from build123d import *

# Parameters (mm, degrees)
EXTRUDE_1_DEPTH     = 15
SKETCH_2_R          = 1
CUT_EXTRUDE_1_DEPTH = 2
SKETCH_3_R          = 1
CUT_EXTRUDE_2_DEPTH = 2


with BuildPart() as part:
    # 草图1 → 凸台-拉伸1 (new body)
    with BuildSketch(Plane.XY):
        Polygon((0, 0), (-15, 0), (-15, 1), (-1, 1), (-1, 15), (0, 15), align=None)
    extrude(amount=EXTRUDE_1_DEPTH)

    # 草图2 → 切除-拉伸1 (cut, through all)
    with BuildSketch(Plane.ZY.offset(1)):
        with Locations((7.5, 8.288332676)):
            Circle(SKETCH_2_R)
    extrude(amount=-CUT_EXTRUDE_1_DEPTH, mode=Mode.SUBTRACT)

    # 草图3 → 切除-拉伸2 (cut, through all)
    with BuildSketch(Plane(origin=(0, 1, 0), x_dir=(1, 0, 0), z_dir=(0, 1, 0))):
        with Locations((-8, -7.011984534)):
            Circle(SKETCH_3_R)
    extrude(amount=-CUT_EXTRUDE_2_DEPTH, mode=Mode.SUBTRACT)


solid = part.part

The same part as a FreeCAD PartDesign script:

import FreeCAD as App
import Part
import Sketcher
from FreeCAD import Vector
Q = App.Units.Quantity


def add_polygon(sketch, points):
    """Adds a closed chain of lines whose ends are joined by coincident constraints."""
    first, n = sketch.GeometryCount, len(points)
    for a, b in zip(points, points[1:] + points[:1]):
        sketch.addGeometry(Part.LineSegment(App.Vector(*a, 0), App.Vector(*b, 0)), False)
    for i in range(n):
        sketch.addConstraint(Sketcher.Constraint("Coincident", first + i, 2, first + (i + 1) % n, 1))

doc = App.newDocument("Part")
body = doc.addObject("PartDesign::Body", "Body")

# Sketch on XY plane
sketch1 = body.newObject("Sketcher::SketchObject", "Sketch")
sketch1.AttachmentSupport = (doc.getObject("XY_Plane"), [""])
sketch1.MapMode = "FlatFace"
add_polygon(sketch1, [(-15, 0), (0, 0), (0, 15), (-1, 15), (-1, 1), (-15, 1)])  # lines 0-5
sketch1.addConstraint([
    Sketcher.Constraint("Horizontal", 0),
    Sketcher.Constraint("Vertical", 1),
    Sketcher.Constraint("Horizontal", 2),
    Sketcher.Constraint("Vertical", 3),
    Sketcher.Constraint("Horizontal", 4),
    Sketcher.Constraint("Vertical", 5),
    Sketcher.Constraint("Coincident", 0, 2, -1, 1),
    Sketcher.Constraint("Equal", 0, 1),
    Sketcher.Constraint("Equal", 4, 3),
    Sketcher.Constraint("DistanceX", 0, 1, 0, 2, Q("15 mm")),
    Sketcher.Constraint("DistanceX", 2, 2, 2, 1, Q("1 mm")),
])
pad1 = body.newObject("PartDesign::Pad", "Pad")
pad1.Profile = sketch1
pad1.Length = 15

# Sketch on YZ plane
sketch2 = body.newObject("Sketcher::SketchObject", "Sketch001")
sketch2.AttachmentSupport = (doc.getObject("YZ_Plane"), [""])
sketch2.MapMode = "FlatFace"
sketch2.AttachmentOffset = App.Placement(Vector(0, 0, -1), App.Rotation())
sketch2.addGeometry(Part.Circle(Vector(8.3, 7.5, 0), Vector(0, 0, 1), 1), False)
sketch2.addConstraint([
    Sketcher.Constraint("Diameter", 0, Q("2 mm")),
    Sketcher.Constraint("DistanceY", -1, 1, 0, 3, Q("7.5 mm")),
    Sketcher.Constraint("DistanceX", -1, 1, 0, 3, Q("8.288333 mm")),
])
pocket1 = body.newObject("PartDesign::Pocket", "Pocket")
pocket1.Profile = sketch2
pocket1.Type = "ThroughAll"
pocket1.Reversed = True

# Sketch on XZ plane
sketch3 = body.newObject("Sketcher::SketchObject", "Sketch002")
sketch3.AttachmentSupport = (doc.getObject("XZ_Plane"), [""])
sketch3.MapMode = "FlatFace"
sketch3.AttachmentOffset = App.Placement(Vector(0, 0, -1), App.Rotation())
sketch3.addGeometry(Part.Circle(Vector(-8, 7, 0), Vector(0, 0, 1), 1), False)
sketch3.addConstraint([
    Sketcher.Constraint("Diameter", 0, Q("2 mm")),
    Sketcher.Constraint("DistanceX", 0, 3, -1, 1, Q("8 mm")),
    Sketcher.Constraint("DistanceY", -1, 1, 0, 3, Q("7.011985 mm")),
])
pocket2 = body.newObject("PartDesign::Pocket", "Pocket001")
pocket2.Profile = sketch3
pocket2.Type = "ThroughAll"
pocket2.Reversed = True

doc.recompute()
